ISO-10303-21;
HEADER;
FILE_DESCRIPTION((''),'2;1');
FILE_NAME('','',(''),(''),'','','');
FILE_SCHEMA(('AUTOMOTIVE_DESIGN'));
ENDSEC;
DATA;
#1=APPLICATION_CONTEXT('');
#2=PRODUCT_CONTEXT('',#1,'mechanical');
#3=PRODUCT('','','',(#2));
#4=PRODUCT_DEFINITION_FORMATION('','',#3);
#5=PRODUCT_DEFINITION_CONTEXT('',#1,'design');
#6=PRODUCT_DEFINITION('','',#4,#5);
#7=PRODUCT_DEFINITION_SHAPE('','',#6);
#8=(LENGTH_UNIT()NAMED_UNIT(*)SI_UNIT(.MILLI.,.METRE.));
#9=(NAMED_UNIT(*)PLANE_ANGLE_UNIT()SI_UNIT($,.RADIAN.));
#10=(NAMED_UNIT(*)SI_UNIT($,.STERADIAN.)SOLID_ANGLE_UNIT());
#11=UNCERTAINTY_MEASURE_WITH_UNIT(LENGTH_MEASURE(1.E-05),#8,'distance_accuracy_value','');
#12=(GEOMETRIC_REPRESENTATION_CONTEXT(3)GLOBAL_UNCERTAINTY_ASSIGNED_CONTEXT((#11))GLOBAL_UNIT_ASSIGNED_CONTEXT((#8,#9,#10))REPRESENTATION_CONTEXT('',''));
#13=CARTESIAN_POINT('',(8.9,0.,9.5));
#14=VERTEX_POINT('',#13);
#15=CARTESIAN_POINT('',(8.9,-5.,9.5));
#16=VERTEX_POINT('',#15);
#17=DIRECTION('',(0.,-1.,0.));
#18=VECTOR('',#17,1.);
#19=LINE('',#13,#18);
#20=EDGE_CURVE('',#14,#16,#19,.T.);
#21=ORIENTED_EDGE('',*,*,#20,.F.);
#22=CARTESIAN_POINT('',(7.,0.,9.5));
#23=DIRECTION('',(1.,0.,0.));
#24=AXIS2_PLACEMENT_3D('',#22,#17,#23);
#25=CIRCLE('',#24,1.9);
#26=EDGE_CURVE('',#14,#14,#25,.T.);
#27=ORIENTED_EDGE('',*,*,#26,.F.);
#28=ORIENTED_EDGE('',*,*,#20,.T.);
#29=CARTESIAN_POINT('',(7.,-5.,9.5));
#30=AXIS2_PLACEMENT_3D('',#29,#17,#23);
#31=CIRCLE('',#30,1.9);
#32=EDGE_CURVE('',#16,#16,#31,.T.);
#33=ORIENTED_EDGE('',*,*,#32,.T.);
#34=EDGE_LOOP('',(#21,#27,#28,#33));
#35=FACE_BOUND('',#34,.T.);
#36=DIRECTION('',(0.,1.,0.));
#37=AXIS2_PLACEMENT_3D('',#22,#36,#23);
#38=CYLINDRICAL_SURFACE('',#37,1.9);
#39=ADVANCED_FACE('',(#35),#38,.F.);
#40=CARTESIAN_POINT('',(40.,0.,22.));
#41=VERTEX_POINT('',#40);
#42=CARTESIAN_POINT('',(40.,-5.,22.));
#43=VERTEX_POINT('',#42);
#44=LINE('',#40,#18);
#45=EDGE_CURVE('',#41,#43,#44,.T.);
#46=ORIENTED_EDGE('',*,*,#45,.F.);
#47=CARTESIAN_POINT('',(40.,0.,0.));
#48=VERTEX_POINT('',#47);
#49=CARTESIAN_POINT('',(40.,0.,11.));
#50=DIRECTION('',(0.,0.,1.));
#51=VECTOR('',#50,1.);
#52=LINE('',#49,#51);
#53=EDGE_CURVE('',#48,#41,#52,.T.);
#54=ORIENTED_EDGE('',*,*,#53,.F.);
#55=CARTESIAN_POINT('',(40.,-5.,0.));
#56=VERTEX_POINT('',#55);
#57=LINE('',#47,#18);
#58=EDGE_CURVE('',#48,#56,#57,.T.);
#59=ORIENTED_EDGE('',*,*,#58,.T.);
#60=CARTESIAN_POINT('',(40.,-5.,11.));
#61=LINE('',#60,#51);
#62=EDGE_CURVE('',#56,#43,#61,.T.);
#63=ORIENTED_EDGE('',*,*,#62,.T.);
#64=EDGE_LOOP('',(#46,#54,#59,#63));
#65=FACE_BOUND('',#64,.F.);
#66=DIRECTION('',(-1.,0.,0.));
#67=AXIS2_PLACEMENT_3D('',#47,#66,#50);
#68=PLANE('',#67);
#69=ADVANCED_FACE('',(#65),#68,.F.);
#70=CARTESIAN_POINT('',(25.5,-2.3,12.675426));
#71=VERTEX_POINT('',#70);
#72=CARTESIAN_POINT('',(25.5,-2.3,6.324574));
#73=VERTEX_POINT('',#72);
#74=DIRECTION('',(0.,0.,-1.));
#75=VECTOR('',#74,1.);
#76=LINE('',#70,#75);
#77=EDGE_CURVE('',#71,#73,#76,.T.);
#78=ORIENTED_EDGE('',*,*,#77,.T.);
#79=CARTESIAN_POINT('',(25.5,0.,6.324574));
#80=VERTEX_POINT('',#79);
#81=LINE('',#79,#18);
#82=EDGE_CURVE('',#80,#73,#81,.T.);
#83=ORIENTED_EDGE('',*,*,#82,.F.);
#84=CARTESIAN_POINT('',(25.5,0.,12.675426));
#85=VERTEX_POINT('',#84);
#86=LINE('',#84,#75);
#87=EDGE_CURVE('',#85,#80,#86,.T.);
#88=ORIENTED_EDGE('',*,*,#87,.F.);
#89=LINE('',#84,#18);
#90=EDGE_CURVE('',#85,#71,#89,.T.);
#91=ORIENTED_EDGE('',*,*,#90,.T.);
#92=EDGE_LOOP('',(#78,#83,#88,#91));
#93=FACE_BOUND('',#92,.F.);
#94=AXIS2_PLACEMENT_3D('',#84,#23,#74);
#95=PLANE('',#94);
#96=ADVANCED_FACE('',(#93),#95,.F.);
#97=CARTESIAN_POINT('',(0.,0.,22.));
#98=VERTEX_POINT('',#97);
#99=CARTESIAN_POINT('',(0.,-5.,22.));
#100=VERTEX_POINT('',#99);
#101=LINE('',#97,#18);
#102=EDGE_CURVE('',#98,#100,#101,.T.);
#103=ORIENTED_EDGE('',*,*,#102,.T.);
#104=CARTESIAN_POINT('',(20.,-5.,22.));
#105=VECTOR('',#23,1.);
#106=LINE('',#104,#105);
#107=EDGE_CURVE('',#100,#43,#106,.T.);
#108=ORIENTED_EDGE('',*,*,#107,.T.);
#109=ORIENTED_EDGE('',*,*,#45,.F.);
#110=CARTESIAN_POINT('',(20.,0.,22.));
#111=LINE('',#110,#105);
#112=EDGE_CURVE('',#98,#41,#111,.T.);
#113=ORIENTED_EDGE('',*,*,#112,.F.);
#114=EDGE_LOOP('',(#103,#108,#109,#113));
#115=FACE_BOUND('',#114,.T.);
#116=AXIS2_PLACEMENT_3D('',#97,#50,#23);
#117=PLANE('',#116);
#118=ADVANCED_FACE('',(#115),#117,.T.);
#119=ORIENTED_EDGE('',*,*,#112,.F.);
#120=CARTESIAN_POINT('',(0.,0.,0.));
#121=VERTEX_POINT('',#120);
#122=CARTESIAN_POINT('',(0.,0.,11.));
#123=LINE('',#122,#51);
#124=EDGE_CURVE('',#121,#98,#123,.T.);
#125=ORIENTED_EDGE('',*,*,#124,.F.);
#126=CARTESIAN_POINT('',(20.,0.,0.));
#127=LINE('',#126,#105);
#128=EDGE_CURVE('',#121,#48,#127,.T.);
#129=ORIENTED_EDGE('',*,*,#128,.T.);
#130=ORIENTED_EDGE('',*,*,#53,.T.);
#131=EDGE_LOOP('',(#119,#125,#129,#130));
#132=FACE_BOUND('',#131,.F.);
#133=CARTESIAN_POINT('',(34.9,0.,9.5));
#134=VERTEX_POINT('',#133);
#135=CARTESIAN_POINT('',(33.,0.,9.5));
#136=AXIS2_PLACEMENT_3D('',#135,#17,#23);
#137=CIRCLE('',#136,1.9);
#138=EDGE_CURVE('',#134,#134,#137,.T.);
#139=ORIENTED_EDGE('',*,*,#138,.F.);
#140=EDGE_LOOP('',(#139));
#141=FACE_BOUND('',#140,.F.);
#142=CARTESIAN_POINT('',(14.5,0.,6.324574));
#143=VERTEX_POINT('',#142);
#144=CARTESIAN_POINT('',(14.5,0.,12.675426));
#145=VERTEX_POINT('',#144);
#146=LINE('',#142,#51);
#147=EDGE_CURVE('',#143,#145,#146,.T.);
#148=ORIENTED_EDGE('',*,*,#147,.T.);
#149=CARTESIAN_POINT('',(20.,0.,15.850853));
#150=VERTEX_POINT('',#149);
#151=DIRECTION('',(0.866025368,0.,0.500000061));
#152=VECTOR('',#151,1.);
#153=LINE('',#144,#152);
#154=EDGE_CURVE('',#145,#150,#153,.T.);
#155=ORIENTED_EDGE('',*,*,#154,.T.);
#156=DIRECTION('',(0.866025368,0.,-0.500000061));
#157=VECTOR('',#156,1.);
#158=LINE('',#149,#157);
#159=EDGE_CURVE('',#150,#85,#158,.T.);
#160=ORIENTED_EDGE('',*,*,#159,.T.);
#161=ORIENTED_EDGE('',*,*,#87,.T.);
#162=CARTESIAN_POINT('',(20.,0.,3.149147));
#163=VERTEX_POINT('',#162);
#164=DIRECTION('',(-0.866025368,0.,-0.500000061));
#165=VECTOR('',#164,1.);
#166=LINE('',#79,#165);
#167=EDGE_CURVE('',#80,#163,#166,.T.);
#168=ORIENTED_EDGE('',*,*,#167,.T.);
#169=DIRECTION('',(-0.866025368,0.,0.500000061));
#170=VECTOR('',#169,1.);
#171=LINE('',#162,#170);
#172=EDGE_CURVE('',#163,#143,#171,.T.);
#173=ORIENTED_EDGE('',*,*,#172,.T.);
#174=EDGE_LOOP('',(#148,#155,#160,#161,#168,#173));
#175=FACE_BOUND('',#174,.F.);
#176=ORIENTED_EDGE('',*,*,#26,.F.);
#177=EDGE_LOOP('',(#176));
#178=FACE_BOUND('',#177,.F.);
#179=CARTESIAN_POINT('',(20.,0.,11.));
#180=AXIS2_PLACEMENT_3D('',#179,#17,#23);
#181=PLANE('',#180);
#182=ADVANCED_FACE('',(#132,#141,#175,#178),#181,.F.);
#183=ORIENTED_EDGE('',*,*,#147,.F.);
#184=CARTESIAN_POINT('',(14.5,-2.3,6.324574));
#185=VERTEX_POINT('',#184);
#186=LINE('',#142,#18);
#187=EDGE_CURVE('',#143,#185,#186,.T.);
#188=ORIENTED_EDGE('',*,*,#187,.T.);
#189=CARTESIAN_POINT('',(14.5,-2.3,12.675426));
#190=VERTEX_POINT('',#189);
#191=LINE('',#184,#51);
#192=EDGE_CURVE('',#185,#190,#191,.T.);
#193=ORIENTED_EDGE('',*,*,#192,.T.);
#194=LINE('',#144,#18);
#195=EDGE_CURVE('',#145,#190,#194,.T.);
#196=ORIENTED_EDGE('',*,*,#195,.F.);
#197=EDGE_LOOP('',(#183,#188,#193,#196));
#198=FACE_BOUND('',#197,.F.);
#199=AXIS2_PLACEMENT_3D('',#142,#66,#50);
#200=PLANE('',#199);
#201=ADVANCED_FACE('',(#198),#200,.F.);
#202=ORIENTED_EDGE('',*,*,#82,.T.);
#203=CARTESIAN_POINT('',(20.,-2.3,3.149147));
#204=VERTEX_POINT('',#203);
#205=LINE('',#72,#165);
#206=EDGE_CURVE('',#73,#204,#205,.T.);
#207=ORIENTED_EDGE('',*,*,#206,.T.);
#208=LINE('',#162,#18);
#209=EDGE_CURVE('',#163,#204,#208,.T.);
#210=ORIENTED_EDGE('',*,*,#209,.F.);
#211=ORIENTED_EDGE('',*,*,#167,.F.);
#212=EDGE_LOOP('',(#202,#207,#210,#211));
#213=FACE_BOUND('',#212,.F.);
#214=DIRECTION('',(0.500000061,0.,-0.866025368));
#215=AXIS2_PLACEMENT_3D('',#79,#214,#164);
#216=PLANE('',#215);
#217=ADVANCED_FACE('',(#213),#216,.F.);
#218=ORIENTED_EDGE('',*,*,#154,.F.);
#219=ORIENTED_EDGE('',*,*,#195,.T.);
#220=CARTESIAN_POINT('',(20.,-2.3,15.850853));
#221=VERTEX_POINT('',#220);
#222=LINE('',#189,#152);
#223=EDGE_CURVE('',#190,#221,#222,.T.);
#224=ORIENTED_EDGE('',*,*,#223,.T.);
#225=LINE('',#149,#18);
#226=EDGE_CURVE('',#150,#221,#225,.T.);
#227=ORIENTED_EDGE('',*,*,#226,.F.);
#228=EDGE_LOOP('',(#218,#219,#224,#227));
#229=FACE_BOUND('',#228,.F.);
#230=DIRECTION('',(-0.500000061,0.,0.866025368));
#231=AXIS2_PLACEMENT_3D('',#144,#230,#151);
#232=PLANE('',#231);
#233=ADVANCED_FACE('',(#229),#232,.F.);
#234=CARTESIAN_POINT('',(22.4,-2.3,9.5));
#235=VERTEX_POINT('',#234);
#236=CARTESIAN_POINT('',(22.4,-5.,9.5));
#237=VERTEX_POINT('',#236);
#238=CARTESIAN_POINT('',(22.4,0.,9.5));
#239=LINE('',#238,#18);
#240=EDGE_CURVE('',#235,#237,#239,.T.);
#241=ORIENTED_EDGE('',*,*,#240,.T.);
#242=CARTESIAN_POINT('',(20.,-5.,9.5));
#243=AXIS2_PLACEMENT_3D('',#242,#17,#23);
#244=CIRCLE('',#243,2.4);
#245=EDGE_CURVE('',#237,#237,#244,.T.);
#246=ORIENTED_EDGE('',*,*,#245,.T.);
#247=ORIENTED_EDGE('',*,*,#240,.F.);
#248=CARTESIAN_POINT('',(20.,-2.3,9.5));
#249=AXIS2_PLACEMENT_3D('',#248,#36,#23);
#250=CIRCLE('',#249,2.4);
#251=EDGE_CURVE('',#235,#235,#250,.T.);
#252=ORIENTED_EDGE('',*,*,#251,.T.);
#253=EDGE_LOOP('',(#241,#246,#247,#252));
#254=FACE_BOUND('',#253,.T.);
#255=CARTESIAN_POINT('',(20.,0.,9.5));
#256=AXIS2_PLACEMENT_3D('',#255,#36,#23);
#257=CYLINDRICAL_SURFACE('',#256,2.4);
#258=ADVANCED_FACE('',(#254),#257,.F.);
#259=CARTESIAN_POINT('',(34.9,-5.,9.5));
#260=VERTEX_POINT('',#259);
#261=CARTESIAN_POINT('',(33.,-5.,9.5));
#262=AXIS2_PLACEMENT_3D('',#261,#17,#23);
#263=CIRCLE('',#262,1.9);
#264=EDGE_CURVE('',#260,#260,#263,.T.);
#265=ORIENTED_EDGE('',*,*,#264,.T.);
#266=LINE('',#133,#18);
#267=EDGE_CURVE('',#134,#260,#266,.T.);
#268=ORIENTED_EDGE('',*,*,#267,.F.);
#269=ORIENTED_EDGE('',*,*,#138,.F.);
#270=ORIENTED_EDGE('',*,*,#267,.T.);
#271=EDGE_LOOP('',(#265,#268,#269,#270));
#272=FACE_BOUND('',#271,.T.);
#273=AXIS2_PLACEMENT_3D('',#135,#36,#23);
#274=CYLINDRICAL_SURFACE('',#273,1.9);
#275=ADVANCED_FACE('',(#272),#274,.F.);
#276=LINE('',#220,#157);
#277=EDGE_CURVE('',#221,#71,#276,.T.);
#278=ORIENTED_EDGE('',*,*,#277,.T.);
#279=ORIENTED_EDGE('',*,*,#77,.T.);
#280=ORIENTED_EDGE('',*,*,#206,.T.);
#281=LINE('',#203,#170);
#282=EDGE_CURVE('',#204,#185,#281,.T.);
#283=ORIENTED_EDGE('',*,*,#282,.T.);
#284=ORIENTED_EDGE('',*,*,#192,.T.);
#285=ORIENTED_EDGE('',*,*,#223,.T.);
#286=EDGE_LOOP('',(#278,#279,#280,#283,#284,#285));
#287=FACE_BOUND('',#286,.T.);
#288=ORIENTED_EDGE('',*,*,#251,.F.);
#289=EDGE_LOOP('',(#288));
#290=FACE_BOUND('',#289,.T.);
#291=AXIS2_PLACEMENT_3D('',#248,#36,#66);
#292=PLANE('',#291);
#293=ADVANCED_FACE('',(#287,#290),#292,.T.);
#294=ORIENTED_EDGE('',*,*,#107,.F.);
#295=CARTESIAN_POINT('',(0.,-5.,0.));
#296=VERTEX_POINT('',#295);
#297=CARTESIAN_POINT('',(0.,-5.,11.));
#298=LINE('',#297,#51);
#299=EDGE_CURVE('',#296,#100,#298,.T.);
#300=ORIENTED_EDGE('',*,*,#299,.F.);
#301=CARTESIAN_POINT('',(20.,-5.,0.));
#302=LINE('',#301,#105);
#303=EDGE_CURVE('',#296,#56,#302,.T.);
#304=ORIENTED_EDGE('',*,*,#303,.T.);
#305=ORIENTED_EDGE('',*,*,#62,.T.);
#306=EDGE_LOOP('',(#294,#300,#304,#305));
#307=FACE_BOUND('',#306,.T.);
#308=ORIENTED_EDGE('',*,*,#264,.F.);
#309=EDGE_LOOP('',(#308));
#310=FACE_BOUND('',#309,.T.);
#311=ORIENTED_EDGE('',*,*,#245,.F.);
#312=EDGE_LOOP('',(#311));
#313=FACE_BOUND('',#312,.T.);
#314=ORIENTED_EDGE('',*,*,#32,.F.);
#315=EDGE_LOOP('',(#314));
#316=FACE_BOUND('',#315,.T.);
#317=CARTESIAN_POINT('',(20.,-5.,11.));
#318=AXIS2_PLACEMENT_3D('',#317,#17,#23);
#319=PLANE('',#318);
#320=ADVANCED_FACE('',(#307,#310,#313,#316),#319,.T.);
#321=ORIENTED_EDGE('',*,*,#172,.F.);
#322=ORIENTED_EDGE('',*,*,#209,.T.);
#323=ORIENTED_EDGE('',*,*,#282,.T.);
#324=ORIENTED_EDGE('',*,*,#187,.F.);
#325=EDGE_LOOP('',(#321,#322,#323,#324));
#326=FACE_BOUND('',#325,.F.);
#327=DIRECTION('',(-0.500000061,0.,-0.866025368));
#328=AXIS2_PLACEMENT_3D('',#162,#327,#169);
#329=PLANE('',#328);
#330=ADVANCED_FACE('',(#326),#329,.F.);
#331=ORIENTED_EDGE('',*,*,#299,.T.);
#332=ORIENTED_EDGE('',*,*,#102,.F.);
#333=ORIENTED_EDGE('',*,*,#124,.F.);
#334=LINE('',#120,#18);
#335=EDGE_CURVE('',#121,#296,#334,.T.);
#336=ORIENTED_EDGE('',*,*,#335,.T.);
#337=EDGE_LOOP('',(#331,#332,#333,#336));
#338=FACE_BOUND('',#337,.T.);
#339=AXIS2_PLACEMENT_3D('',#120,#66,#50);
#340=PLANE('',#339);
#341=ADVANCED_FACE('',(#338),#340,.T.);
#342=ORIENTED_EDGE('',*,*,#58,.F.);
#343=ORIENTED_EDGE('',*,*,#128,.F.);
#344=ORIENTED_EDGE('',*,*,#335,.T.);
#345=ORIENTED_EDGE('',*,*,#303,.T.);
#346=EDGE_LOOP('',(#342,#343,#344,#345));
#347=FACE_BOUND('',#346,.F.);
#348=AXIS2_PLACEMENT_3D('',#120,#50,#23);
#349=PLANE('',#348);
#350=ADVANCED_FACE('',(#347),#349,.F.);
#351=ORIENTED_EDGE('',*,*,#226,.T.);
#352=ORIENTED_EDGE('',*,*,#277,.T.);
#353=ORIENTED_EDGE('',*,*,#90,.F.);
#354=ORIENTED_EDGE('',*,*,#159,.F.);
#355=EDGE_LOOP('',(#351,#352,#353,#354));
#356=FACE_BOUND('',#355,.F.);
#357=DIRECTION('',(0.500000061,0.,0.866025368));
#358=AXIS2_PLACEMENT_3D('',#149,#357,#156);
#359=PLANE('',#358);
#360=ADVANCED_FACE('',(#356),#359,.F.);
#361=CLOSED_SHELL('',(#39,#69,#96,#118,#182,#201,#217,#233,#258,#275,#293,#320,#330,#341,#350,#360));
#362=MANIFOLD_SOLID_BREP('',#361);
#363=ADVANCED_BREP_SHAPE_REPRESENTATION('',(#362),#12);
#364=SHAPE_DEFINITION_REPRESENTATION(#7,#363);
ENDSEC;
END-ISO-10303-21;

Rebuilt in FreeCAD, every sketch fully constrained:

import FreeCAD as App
import Part
import Sketcher
Q = App.Units.Quantity


def add_polygon(sketch, points):
    """Adds a closed chain of lines whose ends are joined by coincident constraints."""
    first, n = sketch.GeometryCount, len(points)
    for a, b in zip(points, points[1:] + points[:1]):
        sketch.addGeometry(Part.LineSegment(App.Vector(*a, 0), App.Vector(*b, 0)), False)
    for i in range(n):
        sketch.addConstraint(Sketcher.Constraint("Coincident", first + i, 2, first + (i + 1) % n, 1))

doc = App.newDocument("Part")
body = doc.addObject("PartDesign::Body", "Body")

sketch1 = body.newObject("Sketcher::SketchObject", "Sketch")
sketch1.AttachmentSupport = (doc.getObject("XZ_Plane"), [""])
sketch1.MapMode = "FlatFace"
add_polygon(sketch1, [(0, 22), (0, 0), (40, 0), (40, 22)])
sketch1.addGeometry(Part.Circle(App.Vector(7, 9.5, 0), App.Vector(0, 0, 1), 1.9), False)
sketch1.addGeometry(Part.Circle(App.Vector(20, 9.5, 0), App.Vector(0, 0, 1), 2.4), False)
sketch1.addGeometry(Part.Circle(App.Vector(33, 9.5, 0), App.Vector(0, 0, 1), 1.9), False)
sketch1.addConstraint(Sketcher.Constraint("Vertical", 0))
sketch1.addConstraint(Sketcher.Constraint("Horizontal", 1))
sketch1.addConstraint(Sketcher.Constraint("Vertical", 2))
sketch1.addConstraint(Sketcher.Constraint("Horizontal", 3))
sketch1.addConstraint(Sketcher.Constraint("Coincident", 0, 2, -1, 1))
sketch1.addConstraint(Sketcher.Constraint("Equal", 4, 6))
sketch1.addConstraint(Sketcher.Constraint("Horizontal", 4, 3, 5, 3))
sketch1.addConstraint(Sketcher.Constraint("Horizontal", 5, 3, 6, 3))
sketch1.addConstraint(Sketcher.Constraint("Diameter", 4, 3.8))
sketch1.addConstraint(Sketcher.Constraint("Diameter", 5, 4.8))
sketch1.addConstraint(Sketcher.Constraint("DistanceX", 1, 1, 1, 2, 40.0))
sketch1.addConstraint(Sketcher.Constraint("DistanceY", 0, 2, 0, 1, 22.0))
sketch1.addConstraint(Sketcher.Constraint("DistanceX", -1, 1, 4, 3, 7.0))
sketch1.addConstraint(Sketcher.Constraint("DistanceX", -1, 1, 5, 3, 20.0))
sketch1.addConstraint(Sketcher.Constraint("DistanceX", -1, 1, 6, 3, 33.0))
sketch1.addConstraint(Sketcher.Constraint("DistanceY", -1, 1, 4, 3, 9.5))
pad1 = body.newObject("PartDesign::Pad", "Pad")
pad1.Profile = sketch1
pad1.Length = 5

sketch2 = body.newObject("Sketcher::SketchObject", "Sketch001")
sketch2.AttachmentSupport = (doc.getObject("XZ_Plane"), [""])
sketch2.MapMode = "FlatFace"
add_polygon(sketch2, [(14.5, 6.324574), (14.5, 12.675426), (20, 15.850853), (25.5, 12.675426), (25.5, 6.324574), (20, 3.149147)])
sketch2.addConstraint(Sketcher.Constraint("Vertical", 0))
sketch2.addConstraint(Sketcher.Constraint("Vertical", 3))
sketch2.addConstraint(Sketcher.Constraint("Parallel", 1, 4))
sketch2.addConstraint(Sketcher.Constraint("Parallel", 2, 5))
sketch2.addConstraint(Sketcher.Constraint("Horizontal", 0, 2, 2, 2))
sketch2.addConstraint(Sketcher.Constraint("Horizontal", 3, 2, 5, 2))
sketch2.addConstraint(Sketcher.Constraint("Vertical", 1, 2, 4, 2))
sketch2.addConstraint(Sketcher.Constraint("Angle", 1, Q("30.000004 deg")))
sketch2.addConstraint(Sketcher.Constraint("DistanceX", -1, 1, 1, 2, 20.0))
sketch2.addConstraint(Sketcher.Constraint("DistanceX", 0, 2, 2, 2, 11.0))
sketch2.addConstraint(Sketcher.Constraint("DistanceY", 0, 1, 0, 2, 6.350852))
sketch2.addConstraint(Sketcher.Constraint("DistanceY", -1, 1, 0, 2, 12.675426))
pocket1 = body.newObject("PartDesign::Pocket", "Pocket")
pocket1.Profile = sketch2
pocket1.Length = 2.3
pocket1.Reversed = True

doc.recompute()
